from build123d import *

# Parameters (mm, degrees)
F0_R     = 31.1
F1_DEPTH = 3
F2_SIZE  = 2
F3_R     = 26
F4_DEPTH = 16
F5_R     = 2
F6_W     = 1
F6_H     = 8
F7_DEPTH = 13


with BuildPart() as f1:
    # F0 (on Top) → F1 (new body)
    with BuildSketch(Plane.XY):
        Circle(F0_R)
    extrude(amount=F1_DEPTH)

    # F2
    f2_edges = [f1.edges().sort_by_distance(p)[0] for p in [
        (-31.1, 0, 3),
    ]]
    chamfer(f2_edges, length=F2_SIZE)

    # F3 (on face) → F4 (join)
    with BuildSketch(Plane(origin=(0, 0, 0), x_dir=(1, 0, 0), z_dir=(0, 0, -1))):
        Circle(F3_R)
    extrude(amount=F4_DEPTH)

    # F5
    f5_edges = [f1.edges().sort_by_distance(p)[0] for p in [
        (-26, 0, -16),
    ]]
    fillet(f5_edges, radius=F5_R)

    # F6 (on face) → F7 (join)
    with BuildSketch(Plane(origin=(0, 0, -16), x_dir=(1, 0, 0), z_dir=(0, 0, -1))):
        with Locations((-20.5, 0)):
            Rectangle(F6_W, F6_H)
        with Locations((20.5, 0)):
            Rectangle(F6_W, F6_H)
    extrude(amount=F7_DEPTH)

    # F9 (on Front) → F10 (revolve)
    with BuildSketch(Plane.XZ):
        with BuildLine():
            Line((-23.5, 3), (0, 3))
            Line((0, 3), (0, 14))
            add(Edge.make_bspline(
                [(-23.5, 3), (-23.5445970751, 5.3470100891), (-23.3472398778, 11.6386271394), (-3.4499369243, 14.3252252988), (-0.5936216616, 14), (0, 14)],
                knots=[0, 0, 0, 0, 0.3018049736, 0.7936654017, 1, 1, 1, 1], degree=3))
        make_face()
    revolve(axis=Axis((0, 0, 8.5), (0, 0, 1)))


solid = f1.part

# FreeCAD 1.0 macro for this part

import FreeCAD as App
import Part
import Sketcher
Q = App.Units.Quantity


def edges_at(feature, points):
    """Names of the edges that pass closest to the given points."""
    edges = feature.Shape.Edges
    near = lambda p: min(range(len(edges)), key=lambda i: edges[i].distToShape(Part.Vertex(*p))[0])
    return sorted({f"Edge{near(p) + 1}" for p in points})

doc = App.newDocument("Part")
body = doc.addObject("PartDesign::Body", "Body")

# Sketch on XY plane
sketch1 = body.newObject("Sketcher::SketchObject", "Sketch")
sketch1.AttachmentSupport = (doc.getObject("XY_Plane"), [""])
sketch1.MapMode = "FlatFace"
sketch1.addGeometry(Part.Circle(App.Vector(0, 0, 0), App.Vector(0, 0, 1), 31), False)
sketch1.addConstraint([
    Sketcher.Constraint("Coincident", 0, 3, -1, 1),
    Sketcher.Constraint("Diameter", 0, Q("62.2 mm")),
])
pad1 = body.newObject("PartDesign::Pad", "Pad")
pad1.Profile = sketch1
pad1.Length = 3
doc.recompute()

chamfer = body.newObject("PartDesign::Chamfer", "Chamfer")
chamfer.Base = (pad1, edges_at(pad1, [(-31.1, 0, 3)]))
chamfer.Size = 2

# Sketch on XY plane
sketch2 = body.newObject("Sketcher::SketchObject", "Sketch001")
sketch2.AttachmentSupport = (doc.getObject("XY_Plane"), [""])
sketch2.MapMode = "FlatFace"
sketch2.addGeometry(Part.Circle(App.Vector(0, 0, 0), App.Vector(0, 0, 1), 26), False)
sketch2.addConstraint([
    Sketcher.Constraint("Coincident", 0, 3, -1, 1),
    Sketcher.Constraint("Diameter", 0, Q("52 mm")),
])
pad2 = body.newObject("PartDesign::Pad", "Pad001")
pad2.Profile = sketch2
pad2.Length = 16
pad2.Reversed = True
doc.recompute()

fillet = body.newObject("PartDesign::Fillet", "Fillet")
fillet.Base = (pad2, edges_at(pad2, [(-26, 0, -16)]))
fillet.Radius = 2

# Sketch on XY plane
sketch3 = body.newObject("Sketcher::SketchObject", "Sketch002")
sketch3.AttachmentSupport = (doc.getObject("XY_Plane"), [""])
sketch3.MapMode = "FlatFace"
sketch3.AttachmentOffset = App.Placement(App.Vector(0, 0, -16), App.Rotation())
sketch3.addGeometry([
    Part.LineSegment(App.Vector(-21, -4, 0), App.Vector(-21, 4, 0)),  # 0
    Part.LineSegment(App.Vector(-21, 4, 0), App.Vector(-20, 4, 0)),  # 1
    Part.LineSegment(App.Vector(-20, 4, 0), App.Vector(-20, -4, 0)),  # 2
    Part.LineSegment(App.Vector(-20, -4, 0), App.Vector(-21, -4, 0)),  # 3
    Part.LineSegment(App.Vector(20, -4, 0), App.Vector(20, 4, 0)),  # 4
    Part.LineSegment(App.Vector(20, 4, 0), App.Vector(21, 4, 0)),  # 5
    Part.LineSegment(App.Vector(21, 4, 0), App.Vector(21, -4, 0)),  # 6
    Part.LineSegment(App.Vector(21, -4, 0), App.Vector(20, -4, 0)),  # 7
], False)
sketch3.addConstraint([
    Sketcher.Constraint("Coincident", 0, 2, 1, 1),
    Sketcher.Constraint("Coincident", 1, 2, 2, 1),
    Sketcher.Constraint("Coincident", 2, 2, 3, 1),
    Sketcher.Constraint("Coincident", 3, 2, 0, 1),
    Sketcher.Constraint("Coincident", 4, 2, 5, 1),
    Sketcher.Constraint("Coincident", 5, 2, 6, 1),
    Sketcher.Constraint("Coincident", 6, 2, 7, 1),
    Sketcher.Constraint("Coincident", 7, 2, 4, 1),
    Sketcher.Constraint("Vertical", 0),
    Sketcher.Constraint("Horizontal", 1),
    Sketcher.Constraint("Vertical", 2),
    Sketcher.Constraint("Horizontal", 3),
    Sketcher.Constraint("Vertical", 4),
    Sketcher.Constraint("Horizontal", 5),
    Sketcher.Constraint("Vertical", 6),
    Sketcher.Constraint("Horizontal", 7),
    Sketcher.Constraint("Symmetric", 2, 2, 4, 2, -1, 1),
    Sketcher.Constraint("Symmetric", 0, 2, 6, 2, -1, 1),
    Sketcher.Constraint("Horizontal", 1, 2, 4, 2),
    Sketcher.Constraint("DistanceX", 1, 1, 1, 2, Q("1 mm")),
    Sketcher.Constraint("DistanceY", 0, 1, 0, 2, Q("8 mm")),
    Sketcher.Constraint("DistanceX", 0, 2, -1, 1, Q("21 mm")),
])
pad3 = body.newObject("PartDesign::Pad", "Pad002")
pad3.Profile = sketch3
pad3.Length = 13
pad3.Reversed = True

# Sketch on XZ plane
sketch4 = body.newObject("Sketcher::SketchObject", "Sketch003")
sketch4.AttachmentSupport = (doc.getObject("XZ_Plane"), [""])
sketch4.MapMode = "FlatFace"
sketch4.addGeometry([
    Part.LineSegment(App.Vector(-23.5, 3, 0), App.Vector(0, 3, 0)),
    Part.LineSegment(App.Vector(0, 3, 0), App.Vector(0, 14, 0)),
    Part.BSplineCurve([App.Vector(-23.5, 3, 0), App.Vector(-23.544597, 5.34701, 0), App.Vector(-23.34724, 11.638627, 0), App.Vector(-3.449937, 14.325225, 0), App.Vector(-0.593622, 14, 0), App.Vector(0, 14, 0)], [4, 1, 1, 4], [0, 0.301804974, 0.793665402, 1], False, 3, [1, 1, 1, 1, 1, 1], False),
], False)
sketch4.addConstraint([
    Sketcher.Constraint("Block", 2),
    Sketcher.Constraint("Coincident", 0, 2, 1, 1),
    Sketcher.Constraint("Coincident", 1, 2, 2, 2),
    Sketcher.Constraint("Coincident", 2, 1, 0, 1),
    Sketcher.Constraint("Horizontal", 0),
    Sketcher.Constraint("Vertical", 1),
])
revolution = body.newObject("PartDesign::Revolution", "Revolution")
revolution.Profile = sketch4
revolution.ReferenceAxis = (sketch4, ["V_Axis"])
revolution.Angle = 360

doc.recompute()
